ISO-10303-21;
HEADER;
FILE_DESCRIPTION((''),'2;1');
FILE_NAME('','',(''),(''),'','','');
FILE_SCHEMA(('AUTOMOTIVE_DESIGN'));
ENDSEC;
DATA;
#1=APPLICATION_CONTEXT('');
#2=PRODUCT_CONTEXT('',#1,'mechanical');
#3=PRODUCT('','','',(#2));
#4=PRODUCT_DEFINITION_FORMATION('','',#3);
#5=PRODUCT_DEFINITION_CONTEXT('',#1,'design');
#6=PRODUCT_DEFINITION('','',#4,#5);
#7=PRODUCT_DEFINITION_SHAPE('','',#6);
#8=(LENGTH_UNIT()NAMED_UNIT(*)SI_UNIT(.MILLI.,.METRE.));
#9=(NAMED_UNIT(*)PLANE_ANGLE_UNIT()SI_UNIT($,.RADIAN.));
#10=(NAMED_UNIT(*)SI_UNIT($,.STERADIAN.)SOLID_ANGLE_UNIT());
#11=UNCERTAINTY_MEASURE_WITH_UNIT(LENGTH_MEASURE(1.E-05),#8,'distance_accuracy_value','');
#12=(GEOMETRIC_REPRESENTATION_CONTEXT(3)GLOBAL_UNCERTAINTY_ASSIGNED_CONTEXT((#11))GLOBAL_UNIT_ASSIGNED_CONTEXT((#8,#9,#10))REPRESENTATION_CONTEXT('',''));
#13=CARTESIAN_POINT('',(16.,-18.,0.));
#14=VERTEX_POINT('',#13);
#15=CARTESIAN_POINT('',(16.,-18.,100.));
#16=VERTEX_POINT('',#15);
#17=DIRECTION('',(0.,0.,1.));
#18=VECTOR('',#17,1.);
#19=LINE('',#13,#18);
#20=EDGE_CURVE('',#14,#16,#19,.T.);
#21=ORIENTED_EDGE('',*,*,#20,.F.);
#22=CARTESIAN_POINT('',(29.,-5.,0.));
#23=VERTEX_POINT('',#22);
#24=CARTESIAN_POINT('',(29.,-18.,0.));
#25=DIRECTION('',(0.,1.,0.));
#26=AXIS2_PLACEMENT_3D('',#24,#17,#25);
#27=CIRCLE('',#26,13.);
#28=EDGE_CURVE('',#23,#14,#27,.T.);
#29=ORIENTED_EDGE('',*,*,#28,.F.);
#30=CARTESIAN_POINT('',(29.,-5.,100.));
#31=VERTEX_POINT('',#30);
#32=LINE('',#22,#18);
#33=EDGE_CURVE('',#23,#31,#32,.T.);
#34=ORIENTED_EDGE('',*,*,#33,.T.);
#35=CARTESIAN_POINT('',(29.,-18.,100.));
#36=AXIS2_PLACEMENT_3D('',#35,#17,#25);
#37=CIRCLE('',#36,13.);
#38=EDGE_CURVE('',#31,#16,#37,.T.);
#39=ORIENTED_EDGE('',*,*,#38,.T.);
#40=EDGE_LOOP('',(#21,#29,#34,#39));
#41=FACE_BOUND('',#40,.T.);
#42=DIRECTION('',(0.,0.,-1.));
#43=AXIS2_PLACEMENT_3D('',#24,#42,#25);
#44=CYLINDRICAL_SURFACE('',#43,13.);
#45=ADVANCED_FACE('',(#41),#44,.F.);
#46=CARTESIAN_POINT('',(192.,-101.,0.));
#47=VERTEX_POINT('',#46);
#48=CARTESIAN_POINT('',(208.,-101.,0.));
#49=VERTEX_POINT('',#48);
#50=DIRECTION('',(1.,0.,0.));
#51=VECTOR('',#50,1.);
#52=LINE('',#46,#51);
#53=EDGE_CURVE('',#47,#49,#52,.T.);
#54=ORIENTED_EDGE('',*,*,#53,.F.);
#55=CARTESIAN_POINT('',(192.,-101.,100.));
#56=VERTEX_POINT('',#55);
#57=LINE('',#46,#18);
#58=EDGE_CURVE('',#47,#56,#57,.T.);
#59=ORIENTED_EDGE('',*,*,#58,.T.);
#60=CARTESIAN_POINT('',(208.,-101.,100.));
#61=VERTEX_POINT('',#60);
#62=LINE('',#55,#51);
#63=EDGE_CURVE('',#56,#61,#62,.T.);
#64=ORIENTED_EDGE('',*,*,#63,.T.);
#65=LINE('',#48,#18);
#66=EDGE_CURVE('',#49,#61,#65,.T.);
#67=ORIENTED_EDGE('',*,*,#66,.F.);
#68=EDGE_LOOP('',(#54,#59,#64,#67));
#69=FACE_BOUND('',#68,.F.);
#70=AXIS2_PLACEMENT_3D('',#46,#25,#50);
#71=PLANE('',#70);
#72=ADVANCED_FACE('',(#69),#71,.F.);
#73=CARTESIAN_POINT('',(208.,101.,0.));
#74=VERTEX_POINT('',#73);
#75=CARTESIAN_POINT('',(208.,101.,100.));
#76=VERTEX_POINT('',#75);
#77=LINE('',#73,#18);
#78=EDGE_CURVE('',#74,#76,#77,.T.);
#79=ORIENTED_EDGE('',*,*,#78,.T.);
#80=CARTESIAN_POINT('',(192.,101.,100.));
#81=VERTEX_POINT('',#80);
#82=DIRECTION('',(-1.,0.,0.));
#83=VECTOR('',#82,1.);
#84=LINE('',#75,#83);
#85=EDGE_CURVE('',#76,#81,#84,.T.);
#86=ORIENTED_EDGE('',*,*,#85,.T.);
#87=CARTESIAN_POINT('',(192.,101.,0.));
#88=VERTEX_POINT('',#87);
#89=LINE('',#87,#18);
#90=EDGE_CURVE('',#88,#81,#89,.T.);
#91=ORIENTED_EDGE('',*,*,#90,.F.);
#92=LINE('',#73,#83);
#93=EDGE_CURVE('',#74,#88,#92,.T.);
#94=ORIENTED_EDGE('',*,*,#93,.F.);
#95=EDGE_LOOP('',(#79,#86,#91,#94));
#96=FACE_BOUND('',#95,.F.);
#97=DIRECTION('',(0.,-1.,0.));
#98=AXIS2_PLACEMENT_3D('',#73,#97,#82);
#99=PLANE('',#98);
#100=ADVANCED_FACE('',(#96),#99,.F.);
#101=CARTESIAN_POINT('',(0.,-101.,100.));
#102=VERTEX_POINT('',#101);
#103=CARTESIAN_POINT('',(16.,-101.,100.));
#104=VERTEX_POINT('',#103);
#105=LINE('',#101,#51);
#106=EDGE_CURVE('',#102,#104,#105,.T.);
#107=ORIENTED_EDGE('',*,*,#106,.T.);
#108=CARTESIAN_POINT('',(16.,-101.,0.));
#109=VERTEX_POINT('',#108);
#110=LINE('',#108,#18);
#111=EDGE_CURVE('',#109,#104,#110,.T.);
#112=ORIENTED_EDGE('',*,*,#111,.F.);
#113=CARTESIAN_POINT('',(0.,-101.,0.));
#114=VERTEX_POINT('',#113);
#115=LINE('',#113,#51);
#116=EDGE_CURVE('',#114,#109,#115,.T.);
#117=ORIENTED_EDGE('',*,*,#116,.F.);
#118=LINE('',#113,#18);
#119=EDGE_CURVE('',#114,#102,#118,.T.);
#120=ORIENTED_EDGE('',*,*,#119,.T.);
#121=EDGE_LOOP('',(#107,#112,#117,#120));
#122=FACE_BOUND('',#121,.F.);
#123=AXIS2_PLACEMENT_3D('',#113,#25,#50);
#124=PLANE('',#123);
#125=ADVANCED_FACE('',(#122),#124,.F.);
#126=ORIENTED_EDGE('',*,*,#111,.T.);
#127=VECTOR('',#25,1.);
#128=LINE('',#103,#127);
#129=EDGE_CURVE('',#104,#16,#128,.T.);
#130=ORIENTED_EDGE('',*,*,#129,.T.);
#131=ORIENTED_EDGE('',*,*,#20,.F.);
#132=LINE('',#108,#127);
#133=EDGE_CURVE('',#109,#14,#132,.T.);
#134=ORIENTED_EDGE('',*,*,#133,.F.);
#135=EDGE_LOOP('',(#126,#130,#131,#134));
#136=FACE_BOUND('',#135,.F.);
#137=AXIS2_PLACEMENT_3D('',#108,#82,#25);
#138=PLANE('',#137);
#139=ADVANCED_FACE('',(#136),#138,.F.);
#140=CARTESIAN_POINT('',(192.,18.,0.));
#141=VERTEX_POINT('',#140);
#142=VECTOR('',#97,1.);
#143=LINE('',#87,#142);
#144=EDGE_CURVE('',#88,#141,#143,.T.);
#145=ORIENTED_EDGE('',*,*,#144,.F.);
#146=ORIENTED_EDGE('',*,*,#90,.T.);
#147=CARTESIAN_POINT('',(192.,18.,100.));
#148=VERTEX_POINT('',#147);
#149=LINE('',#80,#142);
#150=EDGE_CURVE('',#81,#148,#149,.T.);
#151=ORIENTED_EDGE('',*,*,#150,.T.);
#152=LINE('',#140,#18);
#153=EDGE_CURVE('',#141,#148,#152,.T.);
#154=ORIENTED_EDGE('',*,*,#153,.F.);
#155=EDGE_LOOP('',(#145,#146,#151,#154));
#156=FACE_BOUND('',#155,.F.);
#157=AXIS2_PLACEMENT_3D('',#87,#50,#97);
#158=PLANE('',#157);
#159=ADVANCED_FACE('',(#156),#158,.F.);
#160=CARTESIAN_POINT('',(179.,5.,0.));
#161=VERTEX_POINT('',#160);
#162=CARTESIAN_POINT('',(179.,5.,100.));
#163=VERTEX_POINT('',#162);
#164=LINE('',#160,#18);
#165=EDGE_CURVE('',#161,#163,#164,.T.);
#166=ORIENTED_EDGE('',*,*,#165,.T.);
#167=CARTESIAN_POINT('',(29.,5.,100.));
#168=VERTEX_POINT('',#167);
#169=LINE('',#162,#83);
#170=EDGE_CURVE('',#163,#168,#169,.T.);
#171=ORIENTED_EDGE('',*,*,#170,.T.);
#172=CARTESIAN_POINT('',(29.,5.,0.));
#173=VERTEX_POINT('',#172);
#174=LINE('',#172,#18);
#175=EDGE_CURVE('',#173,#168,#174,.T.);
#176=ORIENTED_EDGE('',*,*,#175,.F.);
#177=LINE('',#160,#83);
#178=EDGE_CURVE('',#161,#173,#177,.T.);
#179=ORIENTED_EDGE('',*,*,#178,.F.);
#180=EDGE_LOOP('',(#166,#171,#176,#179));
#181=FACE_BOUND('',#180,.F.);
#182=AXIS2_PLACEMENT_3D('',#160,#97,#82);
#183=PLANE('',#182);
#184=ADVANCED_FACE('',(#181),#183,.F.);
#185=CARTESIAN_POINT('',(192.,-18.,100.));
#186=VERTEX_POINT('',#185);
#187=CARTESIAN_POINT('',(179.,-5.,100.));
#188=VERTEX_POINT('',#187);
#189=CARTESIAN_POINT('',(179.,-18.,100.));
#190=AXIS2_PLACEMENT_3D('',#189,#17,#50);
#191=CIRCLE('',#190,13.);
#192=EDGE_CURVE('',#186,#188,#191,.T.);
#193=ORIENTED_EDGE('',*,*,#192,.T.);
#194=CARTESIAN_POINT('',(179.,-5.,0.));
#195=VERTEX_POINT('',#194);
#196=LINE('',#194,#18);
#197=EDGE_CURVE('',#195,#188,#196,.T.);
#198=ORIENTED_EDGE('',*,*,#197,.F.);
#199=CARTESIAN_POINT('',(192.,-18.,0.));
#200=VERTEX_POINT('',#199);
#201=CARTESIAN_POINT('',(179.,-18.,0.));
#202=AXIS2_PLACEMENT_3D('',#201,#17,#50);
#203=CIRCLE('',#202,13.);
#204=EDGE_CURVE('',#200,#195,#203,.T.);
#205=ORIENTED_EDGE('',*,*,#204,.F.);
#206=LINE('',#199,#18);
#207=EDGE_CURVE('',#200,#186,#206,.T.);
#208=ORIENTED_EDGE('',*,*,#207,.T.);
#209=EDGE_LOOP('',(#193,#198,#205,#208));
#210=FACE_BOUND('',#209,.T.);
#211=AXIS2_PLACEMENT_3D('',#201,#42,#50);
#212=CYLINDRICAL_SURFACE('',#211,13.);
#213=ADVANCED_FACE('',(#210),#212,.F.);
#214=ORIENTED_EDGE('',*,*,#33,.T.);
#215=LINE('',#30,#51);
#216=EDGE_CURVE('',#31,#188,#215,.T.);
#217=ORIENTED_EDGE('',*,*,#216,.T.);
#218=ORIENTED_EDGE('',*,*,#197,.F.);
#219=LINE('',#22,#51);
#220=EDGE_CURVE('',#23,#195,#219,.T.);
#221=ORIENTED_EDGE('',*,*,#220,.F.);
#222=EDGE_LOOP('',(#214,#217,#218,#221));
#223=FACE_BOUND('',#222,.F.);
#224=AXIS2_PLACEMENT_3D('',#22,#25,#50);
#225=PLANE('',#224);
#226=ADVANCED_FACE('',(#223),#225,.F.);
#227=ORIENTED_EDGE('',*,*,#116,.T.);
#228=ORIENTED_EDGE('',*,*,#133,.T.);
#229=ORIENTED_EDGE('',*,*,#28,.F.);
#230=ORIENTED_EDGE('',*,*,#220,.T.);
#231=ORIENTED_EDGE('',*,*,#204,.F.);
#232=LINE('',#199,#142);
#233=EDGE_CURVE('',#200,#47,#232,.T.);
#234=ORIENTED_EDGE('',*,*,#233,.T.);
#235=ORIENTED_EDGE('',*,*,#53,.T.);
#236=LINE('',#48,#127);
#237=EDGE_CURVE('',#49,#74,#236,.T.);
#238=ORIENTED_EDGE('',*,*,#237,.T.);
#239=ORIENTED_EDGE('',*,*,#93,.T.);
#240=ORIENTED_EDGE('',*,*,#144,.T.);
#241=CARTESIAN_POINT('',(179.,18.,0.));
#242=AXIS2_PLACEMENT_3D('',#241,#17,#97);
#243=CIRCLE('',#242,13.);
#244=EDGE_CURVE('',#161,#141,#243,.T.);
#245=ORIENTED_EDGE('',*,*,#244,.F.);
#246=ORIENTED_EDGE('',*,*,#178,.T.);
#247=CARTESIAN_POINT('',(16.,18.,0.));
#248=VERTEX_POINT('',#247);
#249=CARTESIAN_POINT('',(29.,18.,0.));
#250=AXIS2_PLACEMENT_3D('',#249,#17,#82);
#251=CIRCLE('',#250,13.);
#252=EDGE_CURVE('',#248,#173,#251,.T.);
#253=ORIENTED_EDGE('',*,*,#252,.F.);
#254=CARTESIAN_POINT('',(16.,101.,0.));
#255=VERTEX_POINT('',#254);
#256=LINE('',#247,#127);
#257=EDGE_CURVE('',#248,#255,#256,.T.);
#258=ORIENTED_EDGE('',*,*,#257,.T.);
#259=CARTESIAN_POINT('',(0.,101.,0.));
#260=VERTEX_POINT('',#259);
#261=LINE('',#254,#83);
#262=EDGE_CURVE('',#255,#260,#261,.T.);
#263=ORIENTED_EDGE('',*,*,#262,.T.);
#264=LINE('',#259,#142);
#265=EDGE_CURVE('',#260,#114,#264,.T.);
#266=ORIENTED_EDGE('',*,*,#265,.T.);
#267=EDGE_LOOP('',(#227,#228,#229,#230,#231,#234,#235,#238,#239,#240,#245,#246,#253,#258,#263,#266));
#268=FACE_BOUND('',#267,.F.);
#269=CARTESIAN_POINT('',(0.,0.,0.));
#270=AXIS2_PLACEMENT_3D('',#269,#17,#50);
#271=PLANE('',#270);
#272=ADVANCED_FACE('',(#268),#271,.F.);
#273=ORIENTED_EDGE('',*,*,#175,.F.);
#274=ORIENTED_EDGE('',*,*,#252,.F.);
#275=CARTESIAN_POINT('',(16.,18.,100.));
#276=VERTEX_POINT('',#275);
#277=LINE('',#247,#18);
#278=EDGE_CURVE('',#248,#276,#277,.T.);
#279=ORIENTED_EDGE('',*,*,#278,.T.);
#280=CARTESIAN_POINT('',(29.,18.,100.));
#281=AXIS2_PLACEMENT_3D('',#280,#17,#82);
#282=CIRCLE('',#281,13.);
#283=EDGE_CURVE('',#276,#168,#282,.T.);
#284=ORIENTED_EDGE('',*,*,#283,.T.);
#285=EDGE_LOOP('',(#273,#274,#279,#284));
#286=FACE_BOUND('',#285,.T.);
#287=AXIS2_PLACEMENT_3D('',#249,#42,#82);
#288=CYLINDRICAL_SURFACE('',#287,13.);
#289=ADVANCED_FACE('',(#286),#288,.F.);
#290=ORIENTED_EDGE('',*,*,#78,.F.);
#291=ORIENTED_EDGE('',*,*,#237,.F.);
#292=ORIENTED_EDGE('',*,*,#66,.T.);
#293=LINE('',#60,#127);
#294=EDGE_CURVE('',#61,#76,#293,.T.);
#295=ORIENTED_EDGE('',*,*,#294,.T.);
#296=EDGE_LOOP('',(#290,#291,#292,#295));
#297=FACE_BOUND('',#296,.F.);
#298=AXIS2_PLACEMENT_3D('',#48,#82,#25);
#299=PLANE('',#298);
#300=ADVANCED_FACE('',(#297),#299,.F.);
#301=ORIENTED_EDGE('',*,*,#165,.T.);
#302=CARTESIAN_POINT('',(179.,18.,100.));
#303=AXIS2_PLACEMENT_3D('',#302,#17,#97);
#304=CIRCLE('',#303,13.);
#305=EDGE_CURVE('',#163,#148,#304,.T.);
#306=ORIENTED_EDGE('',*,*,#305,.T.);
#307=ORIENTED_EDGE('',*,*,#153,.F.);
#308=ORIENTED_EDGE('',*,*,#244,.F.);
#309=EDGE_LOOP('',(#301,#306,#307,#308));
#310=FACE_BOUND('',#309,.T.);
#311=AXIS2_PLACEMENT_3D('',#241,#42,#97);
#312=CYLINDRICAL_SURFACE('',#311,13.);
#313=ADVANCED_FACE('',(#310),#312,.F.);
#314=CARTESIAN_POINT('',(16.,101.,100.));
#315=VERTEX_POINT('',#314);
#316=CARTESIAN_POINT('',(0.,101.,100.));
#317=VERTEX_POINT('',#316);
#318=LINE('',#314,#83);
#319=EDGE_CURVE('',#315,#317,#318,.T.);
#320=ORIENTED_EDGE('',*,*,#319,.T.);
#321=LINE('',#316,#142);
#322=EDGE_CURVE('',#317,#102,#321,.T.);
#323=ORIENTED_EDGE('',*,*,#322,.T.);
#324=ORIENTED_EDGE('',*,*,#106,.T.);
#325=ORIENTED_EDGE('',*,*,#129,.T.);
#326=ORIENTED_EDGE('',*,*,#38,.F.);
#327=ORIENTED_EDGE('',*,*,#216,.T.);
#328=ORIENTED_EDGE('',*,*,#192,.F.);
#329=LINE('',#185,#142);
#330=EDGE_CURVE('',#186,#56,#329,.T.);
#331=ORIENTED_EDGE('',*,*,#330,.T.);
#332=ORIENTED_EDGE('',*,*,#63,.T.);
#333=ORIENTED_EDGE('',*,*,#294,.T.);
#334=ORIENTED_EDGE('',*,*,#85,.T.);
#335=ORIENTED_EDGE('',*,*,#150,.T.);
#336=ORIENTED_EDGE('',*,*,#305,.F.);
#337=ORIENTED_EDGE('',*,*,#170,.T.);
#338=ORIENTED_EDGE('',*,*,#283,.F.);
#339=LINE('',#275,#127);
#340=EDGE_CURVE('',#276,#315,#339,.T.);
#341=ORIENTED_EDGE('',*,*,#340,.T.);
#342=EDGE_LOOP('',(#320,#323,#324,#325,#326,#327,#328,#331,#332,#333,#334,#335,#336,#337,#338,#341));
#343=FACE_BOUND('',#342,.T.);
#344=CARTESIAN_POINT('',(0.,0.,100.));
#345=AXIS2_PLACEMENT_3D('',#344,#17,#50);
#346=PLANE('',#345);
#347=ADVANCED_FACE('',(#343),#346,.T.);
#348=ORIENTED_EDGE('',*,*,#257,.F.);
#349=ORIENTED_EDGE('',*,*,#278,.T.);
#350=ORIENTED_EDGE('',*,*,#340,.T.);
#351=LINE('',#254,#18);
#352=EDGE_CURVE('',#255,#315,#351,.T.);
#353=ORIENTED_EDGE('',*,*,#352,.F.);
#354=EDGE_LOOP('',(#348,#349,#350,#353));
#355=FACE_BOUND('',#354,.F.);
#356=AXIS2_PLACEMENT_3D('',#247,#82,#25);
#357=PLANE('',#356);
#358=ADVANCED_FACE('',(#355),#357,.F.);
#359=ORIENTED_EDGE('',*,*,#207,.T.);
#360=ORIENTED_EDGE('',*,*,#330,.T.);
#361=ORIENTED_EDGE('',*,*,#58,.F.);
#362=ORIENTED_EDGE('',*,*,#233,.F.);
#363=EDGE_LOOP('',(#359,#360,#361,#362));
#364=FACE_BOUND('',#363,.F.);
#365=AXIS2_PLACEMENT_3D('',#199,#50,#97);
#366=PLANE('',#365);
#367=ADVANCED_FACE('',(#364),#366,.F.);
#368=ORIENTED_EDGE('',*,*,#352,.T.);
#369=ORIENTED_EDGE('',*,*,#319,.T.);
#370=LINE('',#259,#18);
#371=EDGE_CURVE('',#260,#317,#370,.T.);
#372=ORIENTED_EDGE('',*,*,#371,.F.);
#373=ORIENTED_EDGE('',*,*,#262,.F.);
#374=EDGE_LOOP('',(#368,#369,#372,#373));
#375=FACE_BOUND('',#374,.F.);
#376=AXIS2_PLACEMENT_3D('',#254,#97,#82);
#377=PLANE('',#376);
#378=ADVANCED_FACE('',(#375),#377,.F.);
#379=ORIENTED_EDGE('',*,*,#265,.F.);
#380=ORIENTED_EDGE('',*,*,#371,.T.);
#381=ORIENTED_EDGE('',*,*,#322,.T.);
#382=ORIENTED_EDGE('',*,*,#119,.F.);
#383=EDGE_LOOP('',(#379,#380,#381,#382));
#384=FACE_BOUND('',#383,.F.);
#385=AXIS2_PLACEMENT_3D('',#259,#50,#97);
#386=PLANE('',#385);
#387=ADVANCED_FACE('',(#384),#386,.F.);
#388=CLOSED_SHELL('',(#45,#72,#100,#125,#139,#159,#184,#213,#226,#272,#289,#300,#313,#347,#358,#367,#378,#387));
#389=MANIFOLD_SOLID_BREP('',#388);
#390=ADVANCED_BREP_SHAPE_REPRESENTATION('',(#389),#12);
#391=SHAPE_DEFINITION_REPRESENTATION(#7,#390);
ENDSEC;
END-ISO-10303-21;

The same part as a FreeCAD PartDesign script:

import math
import FreeCAD as App
import Part
import Sketcher

V = App.Vector

doc = App.newDocument("Part")
body = doc.addObject("PartDesign::Body", "Body")

sketch1 = doc.addObject("Sketcher::SketchObject", "Sketch")
body.addObject(sketch1)
sketch1.AttachmentSupport = (doc.XY_Plane, [""])
sketch1.MapMode = "FlatFace"
sketch1.addGeometry(Part.LineSegment(V(16, 101, 0), V(0, 101, 0)), False)
sketch1.addGeometry(Part.LineSegment(V(0, 101, 0), V(0, -101, 0)), False)
sketch1.addGeometry(Part.LineSegment(V(0, -101, 0), V(16, -101, 0)), False)
sketch1.addGeometry(Part.LineSegment(V(16, -101, 0), V(16, -18, 0)), False)
sketch1.addGeometry(Part.ArcOfCircle(Part.Circle(V(29, -18, 0), V(0, 0, 1), 13), math.radians(90), math.radians(180)), False)
sketch1.addGeometry(Part.LineSegment(V(29, -5, 0), V(179, -5, 0)), False)
sketch1.addGeometry(Part.ArcOfCircle(Part.Circle(V(179, -18, 0), V(0, 0, 1), 13), math.radians(0), math.radians(90)), False)
sketch1.addGeometry(Part.LineSegment(V(192, -18, 0), V(192, -101, 0)), False)
sketch1.addGeometry(Part.LineSegment(V(192, -101, 0), V(208, -101, 0)), False)
sketch1.addGeometry(Part.LineSegment(V(208, -101, 0), V(208, 101, 0)), False)
sketch1.addGeometry(Part.LineSegment(V(208, 101, 0), V(192, 101, 0)), False)
sketch1.addGeometry(Part.LineSegment(V(192, 101, 0), V(192, 18, 0)), False)
sketch1.addGeometry(Part.ArcOfCircle(Part.Circle(V(179, 18, 0), V(0, 0, 1), 13), math.radians(-90), math.radians(0)), False)
sketch1.addGeometry(Part.LineSegment(V(179, 5, 0), V(29, 5, 0)), False)
sketch1.addGeometry(Part.ArcOfCircle(Part.Circle(V(29, 18, 0), V(0, 0, 1), 13), math.radians(180), math.radians(270)), False)
sketch1.addGeometry(Part.LineSegment(V(16, 18, 0), V(16, 101, 0)), False)
sketch1.addConstraint(Sketcher.Constraint("Coincident", 0, 2, 1, 1))
sketch1.addConstraint(Sketcher.Constraint("Coincident", 1, 2, 2, 1))
sketch1.addConstraint(Sketcher.Constraint("Coincident", 2, 2, 3, 1))
sketch1.addConstraint(Sketcher.Constraint("Tangent", 3, 2, 4, 2))
sketch1.addConstraint(Sketcher.Constraint("Tangent", 4, 1, 5, 1))
sketch1.addConstraint(Sketcher.Constraint("Tangent", 5, 2, 6, 2))
sketch1.addConstraint(Sketcher.Constraint("Tangent", 6, 1, 7, 1))
sketch1.addConstraint(Sketcher.Constraint("Coincident", 7, 2, 8, 1))
sketch1.addConstraint(Sketcher.Constraint("Coincident", 8, 2, 9, 1))
sketch1.addConstraint(Sketcher.Constraint("Coincident", 9, 2, 10, 1))
sketch1.addConstraint(Sketcher.Constraint("Coincident", 10, 2, 11, 1))
sketch1.addConstraint(Sketcher.Constraint("Tangent", 11, 2, 12, 2))
sketch1.addConstraint(Sketcher.Constraint("Tangent", 12, 1, 13, 1))
sketch1.addConstraint(Sketcher.Constraint("Tangent", 13, 2, 14, 2))
sketch1.addConstraint(Sketcher.Constraint("Tangent", 14, 1, 15, 1))
sketch1.addConstraint(Sketcher.Constraint("Coincident", 15, 2, 0, 1))
sketch1.addConstraint(Sketcher.Constraint("Horizontal", 0))
sketch1.addConstraint(Sketcher.Constraint("Vertical", 1))
sketch1.addConstraint(Sketcher.Constraint("Horizontal", 2))
sketch1.addConstraint(Sketcher.Constraint("Vertical", 3))
sketch1.addConstraint(Sketcher.Constraint("Horizontal", 5))
sketch1.addConstraint(Sketcher.Constraint("Vertical", 7))
sketch1.addConstraint(Sketcher.Constraint("Horizontal", 8))
sketch1.addConstraint(Sketcher.Constraint("Vertical", 9))
sketch1.addConstraint(Sketcher.Constraint("Horizontal", 10))
sketch1.addConstraint(Sketcher.Constraint("Vertical", 11))
sketch1.addConstraint(Sketcher.Constraint("Horizontal", 13))
sketch1.addConstraint(Sketcher.Constraint("Vertical", 15))
sketch1.addConstraint(Sketcher.Constraint("Equal", 4, 6))
sketch1.addConstraint(Sketcher.Constraint("Equal", 6, 12))
sketch1.addConstraint(Sketcher.Constraint("Equal", 12, 14))
sketch1.addConstraint(Sketcher.Constraint("Symmetric", 0, 2, 1, 2, -1, 1))
sketch1.addConstraint(Sketcher.Constraint("Symmetric", 6, 3, 12, 3, -1))
sketch1.addConstraint(Sketcher.Constraint("Horizontal", 2, 2, 7, 2))
sketch1.addConstraint(Sketcher.Constraint("Horizontal", 0, 2, 9, 2))
sketch1.addConstraint(Sketcher.Constraint("Vertical", 4, 3, 14, 3))
sketch1.addConstraint(Sketcher.Constraint("Equal", 2, 8))
sketch1.addConstraint(Sketcher.Constraint("Radius", 4, 13.0))
sketch1.addConstraint(Sketcher.Constraint("DistanceX", 0, 2, 0, 1, 16.0))
sketch1.addConstraint(Sketcher.Constraint("DistanceX", 5, 1, 5, 2, 150.0))
sketch1.addConstraint(Sketcher.Constraint("DistanceY", 1, 2, 1, 1, 202.0))
sketch1.addConstraint(Sketcher.Constraint("DistanceY", 3, 1, 3, 2, 83.0))
pad1 = doc.addObject("PartDesign::Pad", "Pad")
body.addObject(pad1)
pad1.Profile = sketch1
pad1.Length = 100

doc.recompute()
